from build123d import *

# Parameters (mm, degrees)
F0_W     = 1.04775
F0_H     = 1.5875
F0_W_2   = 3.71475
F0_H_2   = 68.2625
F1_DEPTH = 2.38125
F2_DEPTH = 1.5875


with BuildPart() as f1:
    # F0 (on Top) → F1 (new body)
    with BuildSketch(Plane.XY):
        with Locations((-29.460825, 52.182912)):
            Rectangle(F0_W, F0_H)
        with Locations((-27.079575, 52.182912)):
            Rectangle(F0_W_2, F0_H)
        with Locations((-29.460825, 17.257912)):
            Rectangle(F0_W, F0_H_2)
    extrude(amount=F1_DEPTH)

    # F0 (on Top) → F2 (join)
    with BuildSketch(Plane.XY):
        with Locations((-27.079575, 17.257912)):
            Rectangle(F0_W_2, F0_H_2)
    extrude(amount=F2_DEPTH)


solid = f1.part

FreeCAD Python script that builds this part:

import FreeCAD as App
import Part
import Sketcher
from FreeCAD import Vector
Q = App.Units.Quantity


def add_polygon(sketch, points):
    """Adds a closed chain of lines whose ends are joined by coincident constraints."""
    first, n = sketch.GeometryCount, len(points)
    for a, b in zip(points, points[1:] + points[:1]):
        sketch.addGeometry(Part.LineSegment(App.Vector(*a, 0), App.Vector(*b, 0)), False)
    for i in range(n):
        sketch.addConstraint(Sketcher.Constraint("Coincident", first + i, 2, first + (i + 1) % n, 1))

doc = App.newDocument("Part")
body = doc.addObject("PartDesign::Body", "Body")

sketch1 = body.newObject("Sketcher::SketchObject", "Sketch")
sketch1.AttachmentSupport = (doc.getObject("XY_Plane"), [""])
sketch1.MapMode = "FlatFace"
add_polygon(sketch1, [(-29.9847, 52.976662), (-29.9847, -16.873338), (-28.93695, -16.873338), (-28.93695, 51.389162), (-25.2222, 51.389162), (-25.2222, 52.976662)])
sketch1.addConstraint([
    Sketcher.Constraint("Vertical", 0),
    Sketcher.Constraint("Horizontal", 1),
    Sketcher.Constraint("Vertical", 2),
    Sketcher.Constraint("Horizontal", 3),
    Sketcher.Constraint("Vertical", 4),
    Sketcher.Constraint("Horizontal", 5),
    Sketcher.Constraint("DistanceY", 0, 2, 0, 1, Q("2.75 in")),
    Sketcher.Constraint("DistanceX", 5, 2, 5, 1, Q("0.1875 in")),
    Sketcher.Constraint("DistanceY", 2, 1, 2, 2, Q("2.6875 in")),
    Sketcher.Constraint("DistanceX", 3, 2, -1, 1, Q("0.993 in")),
    Sketcher.Constraint("DistanceX", 1, 1, 1, 2, 1.04775),
    Sketcher.Constraint("DistanceY", 0, 2, -1, 1, 16.873338),
])
pad1 = body.newObject("PartDesign::Pad", "Pad")
pad1.Profile = sketch1
pad1.Length = Q("0.09375 in")

sketch2 = body.newObject("Sketcher::SketchObject", "Sketch001")
sketch2.AttachmentSupport = (doc.getObject("XY_Plane"), [""])
sketch2.MapMode = "FlatFace"
add_polygon(sketch2, [(-28.93695, 51.389162), (-28.93695, -16.873338), (-25.2222, -16.873338), (-25.2222, 51.389162)])
sketch2.addConstraint([
    Sketcher.Constraint("Vertical", 0),
    Sketcher.Constraint("Horizontal", 1),
    Sketcher.Constraint("Vertical", 2),
    Sketcher.Constraint("Horizontal", 3),
    Sketcher.Constraint("DistanceY", 0, 2, 0, 1, Q("2.6875 in")),
    Sketcher.Constraint("DistanceX", 1, 2, -1, 1, Q("0.993 in")),
    Sketcher.Constraint("DistanceX", 1, 1, 1, 2, 3.71475),
    Sketcher.Constraint("DistanceY", 0, 2, -1, 1, 16.873338),
])
pad2 = body.newObject("PartDesign::Pad", "Pad001")
pad2.Profile = sketch2
pad2.Length = Q("0.0625 in")

doc.recompute()
